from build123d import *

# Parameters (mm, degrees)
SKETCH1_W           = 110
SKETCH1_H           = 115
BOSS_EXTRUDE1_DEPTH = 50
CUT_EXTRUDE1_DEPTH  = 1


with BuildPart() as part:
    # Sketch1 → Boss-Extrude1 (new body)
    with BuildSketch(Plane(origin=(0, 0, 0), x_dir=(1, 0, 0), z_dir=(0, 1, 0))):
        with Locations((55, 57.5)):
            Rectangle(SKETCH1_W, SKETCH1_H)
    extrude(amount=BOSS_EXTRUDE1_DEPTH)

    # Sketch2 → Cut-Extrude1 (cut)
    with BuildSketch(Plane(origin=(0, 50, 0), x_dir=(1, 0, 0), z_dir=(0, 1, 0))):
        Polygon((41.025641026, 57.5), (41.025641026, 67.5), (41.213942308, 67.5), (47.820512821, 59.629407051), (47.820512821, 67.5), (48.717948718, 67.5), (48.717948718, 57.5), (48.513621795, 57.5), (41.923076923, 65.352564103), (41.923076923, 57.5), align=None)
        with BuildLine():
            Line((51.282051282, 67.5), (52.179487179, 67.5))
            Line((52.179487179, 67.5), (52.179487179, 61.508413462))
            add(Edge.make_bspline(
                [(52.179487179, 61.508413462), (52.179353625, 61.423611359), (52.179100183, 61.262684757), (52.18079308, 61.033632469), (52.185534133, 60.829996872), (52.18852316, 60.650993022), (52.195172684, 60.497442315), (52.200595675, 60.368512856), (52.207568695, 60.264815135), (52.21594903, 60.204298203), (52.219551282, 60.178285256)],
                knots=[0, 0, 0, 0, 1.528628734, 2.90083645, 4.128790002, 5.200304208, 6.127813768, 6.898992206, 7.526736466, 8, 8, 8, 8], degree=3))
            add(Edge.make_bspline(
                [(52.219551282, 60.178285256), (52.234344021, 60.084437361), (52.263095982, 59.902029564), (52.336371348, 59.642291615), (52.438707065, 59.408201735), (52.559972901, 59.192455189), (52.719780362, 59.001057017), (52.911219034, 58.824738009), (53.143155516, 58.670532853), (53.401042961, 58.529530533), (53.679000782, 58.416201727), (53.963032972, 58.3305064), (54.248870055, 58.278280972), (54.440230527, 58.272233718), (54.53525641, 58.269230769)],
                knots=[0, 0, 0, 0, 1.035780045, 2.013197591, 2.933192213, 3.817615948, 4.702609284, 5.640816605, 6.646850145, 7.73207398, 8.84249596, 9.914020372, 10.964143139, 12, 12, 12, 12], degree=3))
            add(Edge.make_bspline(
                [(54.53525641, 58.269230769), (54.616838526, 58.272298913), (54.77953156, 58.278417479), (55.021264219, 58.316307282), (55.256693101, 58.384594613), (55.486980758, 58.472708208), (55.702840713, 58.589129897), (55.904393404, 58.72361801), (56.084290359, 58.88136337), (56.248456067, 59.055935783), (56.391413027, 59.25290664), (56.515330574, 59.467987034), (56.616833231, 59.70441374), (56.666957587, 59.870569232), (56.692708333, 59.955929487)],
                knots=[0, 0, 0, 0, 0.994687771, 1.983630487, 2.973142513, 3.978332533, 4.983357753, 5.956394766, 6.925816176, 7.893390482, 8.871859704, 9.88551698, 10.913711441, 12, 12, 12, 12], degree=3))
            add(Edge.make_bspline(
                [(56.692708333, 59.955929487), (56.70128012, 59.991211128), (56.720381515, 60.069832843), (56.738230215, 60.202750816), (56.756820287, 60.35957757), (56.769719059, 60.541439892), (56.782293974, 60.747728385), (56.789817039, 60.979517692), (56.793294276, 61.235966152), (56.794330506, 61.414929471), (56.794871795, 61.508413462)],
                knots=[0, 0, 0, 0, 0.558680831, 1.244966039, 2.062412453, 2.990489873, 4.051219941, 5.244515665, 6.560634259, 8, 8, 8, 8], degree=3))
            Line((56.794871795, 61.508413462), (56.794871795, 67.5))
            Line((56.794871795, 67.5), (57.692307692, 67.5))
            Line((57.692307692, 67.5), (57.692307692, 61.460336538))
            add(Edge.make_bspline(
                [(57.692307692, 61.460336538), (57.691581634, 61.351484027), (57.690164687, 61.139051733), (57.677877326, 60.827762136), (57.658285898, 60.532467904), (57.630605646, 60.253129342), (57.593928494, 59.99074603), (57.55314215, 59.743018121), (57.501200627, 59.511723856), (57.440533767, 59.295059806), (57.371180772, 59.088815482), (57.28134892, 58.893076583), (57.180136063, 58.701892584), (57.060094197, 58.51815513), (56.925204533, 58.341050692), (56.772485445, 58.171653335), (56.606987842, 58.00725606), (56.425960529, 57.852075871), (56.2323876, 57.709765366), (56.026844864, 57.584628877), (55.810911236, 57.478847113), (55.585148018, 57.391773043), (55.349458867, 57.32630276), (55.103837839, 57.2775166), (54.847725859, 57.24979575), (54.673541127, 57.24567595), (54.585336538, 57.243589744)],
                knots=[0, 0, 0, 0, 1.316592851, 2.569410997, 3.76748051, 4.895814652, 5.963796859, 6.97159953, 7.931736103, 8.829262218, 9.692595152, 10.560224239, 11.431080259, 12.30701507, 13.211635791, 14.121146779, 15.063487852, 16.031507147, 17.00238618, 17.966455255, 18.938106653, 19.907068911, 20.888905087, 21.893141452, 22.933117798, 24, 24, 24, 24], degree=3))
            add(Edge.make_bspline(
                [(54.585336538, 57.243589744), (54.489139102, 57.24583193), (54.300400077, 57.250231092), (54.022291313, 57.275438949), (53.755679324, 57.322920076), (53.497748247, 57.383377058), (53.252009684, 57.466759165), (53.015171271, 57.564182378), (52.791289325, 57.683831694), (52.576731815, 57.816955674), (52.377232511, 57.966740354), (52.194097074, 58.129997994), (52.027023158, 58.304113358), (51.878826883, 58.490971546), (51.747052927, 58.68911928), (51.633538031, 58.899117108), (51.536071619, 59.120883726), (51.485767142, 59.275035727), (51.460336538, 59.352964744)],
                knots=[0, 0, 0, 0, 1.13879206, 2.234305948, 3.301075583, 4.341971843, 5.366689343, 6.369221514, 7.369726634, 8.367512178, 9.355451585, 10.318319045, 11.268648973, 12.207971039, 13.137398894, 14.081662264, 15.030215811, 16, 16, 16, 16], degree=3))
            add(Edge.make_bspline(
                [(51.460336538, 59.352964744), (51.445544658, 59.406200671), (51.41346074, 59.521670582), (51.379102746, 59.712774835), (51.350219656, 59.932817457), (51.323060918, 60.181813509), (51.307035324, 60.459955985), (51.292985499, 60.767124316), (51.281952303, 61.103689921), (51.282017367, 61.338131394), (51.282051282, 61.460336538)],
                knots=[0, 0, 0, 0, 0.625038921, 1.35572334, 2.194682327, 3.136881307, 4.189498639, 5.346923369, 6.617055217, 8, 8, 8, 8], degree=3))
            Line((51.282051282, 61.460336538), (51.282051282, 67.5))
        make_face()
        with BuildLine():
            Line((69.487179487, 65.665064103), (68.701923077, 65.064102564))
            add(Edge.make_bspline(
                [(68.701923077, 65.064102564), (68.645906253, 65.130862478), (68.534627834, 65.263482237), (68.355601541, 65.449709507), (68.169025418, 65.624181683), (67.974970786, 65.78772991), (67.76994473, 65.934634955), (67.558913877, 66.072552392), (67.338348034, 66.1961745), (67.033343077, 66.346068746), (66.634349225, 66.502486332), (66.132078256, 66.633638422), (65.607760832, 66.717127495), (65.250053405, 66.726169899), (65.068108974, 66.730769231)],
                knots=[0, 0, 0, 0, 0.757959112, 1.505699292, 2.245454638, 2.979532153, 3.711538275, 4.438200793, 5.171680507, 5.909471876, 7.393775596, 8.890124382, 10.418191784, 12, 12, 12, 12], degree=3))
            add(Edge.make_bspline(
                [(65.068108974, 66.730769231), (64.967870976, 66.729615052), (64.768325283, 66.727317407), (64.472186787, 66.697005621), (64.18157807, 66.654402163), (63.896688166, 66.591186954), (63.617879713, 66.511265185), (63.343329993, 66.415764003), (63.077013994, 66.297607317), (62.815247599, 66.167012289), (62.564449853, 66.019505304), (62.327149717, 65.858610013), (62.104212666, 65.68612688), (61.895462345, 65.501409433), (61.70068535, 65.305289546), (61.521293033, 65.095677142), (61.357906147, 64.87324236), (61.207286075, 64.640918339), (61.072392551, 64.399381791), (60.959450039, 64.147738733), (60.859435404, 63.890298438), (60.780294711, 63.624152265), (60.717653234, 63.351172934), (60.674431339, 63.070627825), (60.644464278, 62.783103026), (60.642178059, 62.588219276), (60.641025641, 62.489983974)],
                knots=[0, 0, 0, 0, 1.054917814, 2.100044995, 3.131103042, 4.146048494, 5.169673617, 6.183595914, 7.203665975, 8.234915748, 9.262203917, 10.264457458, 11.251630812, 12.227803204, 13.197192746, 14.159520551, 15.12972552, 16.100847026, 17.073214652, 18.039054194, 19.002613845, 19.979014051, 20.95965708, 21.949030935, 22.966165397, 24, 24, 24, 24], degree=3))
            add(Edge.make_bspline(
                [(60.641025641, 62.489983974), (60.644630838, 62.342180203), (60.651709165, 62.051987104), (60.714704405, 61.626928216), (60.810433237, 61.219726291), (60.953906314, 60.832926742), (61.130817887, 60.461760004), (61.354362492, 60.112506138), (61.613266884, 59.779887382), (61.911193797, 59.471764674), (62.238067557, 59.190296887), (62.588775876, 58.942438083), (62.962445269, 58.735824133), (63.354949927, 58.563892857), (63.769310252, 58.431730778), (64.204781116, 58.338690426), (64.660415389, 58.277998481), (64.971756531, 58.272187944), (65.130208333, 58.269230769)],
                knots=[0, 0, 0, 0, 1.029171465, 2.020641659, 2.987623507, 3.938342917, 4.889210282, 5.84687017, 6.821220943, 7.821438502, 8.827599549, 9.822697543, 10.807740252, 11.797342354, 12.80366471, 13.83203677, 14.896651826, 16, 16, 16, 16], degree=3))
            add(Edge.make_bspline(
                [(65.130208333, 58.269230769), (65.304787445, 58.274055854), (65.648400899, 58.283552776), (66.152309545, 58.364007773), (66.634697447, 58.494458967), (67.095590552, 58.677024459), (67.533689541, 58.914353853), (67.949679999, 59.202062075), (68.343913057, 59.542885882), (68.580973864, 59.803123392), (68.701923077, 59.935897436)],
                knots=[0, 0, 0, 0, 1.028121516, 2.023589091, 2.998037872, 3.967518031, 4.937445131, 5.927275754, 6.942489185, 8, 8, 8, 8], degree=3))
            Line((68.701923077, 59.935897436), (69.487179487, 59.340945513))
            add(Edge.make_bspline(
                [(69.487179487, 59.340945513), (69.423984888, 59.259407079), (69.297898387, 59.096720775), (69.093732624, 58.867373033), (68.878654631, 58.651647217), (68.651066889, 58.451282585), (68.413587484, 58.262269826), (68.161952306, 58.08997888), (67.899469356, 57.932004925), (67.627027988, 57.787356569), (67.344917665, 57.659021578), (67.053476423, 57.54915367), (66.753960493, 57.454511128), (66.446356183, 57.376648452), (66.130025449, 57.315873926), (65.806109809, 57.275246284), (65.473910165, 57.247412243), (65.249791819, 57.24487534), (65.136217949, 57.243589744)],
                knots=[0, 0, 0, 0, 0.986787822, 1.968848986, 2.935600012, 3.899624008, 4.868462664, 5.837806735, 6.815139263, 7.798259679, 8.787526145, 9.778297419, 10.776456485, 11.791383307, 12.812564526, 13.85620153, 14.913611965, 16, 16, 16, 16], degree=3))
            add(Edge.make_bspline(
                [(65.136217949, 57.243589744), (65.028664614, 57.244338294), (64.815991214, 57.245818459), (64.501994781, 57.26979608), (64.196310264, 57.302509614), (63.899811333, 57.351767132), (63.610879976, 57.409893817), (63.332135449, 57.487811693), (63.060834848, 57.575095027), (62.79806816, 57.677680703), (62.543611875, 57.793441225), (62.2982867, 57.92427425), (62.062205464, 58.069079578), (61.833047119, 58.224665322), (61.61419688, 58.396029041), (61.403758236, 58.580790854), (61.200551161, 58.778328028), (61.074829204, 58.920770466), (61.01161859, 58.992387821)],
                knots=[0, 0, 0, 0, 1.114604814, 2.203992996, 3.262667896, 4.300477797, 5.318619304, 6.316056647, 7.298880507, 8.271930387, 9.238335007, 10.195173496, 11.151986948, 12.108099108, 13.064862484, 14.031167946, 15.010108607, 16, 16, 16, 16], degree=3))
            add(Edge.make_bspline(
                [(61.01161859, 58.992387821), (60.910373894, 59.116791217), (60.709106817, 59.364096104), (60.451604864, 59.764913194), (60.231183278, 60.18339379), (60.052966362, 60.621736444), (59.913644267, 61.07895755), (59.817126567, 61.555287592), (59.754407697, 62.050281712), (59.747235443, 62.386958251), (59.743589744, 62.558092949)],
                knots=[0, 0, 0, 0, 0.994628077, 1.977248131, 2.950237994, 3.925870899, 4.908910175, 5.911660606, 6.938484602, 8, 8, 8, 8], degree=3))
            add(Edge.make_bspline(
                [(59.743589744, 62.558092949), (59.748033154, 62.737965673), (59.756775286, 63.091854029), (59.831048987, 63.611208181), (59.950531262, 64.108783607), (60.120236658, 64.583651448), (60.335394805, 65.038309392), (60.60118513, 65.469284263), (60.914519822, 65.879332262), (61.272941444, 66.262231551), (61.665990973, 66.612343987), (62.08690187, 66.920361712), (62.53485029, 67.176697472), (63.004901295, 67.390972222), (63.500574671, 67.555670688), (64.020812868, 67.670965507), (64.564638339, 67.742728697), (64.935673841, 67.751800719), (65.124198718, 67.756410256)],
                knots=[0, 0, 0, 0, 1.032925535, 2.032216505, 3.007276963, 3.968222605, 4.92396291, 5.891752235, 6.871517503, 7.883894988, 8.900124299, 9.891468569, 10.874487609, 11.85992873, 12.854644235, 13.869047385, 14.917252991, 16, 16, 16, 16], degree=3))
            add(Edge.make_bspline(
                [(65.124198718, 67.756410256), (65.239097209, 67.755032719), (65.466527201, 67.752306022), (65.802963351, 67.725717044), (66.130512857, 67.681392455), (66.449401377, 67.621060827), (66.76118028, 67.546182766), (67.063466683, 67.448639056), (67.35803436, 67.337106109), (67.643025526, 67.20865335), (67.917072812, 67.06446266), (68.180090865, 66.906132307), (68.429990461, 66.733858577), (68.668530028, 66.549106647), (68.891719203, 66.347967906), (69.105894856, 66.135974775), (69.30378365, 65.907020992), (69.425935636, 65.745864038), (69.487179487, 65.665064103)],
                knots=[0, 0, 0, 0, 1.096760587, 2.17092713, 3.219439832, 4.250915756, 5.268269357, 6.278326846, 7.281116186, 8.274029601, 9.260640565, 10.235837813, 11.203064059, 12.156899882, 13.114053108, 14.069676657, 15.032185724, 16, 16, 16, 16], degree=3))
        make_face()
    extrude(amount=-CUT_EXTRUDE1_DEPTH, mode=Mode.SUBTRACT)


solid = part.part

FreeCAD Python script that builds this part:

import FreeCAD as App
import Part
import Sketcher
Q = App.Units.Quantity


def add_polygon(sketch, points):
    """Adds a closed chain of lines whose ends are joined by coincident constraints."""
    first, n = sketch.GeometryCount, len(points)
    for a, b in zip(points, points[1:] + points[:1]):
        sketch.addGeometry(Part.LineSegment(App.Vector(*a, 0), App.Vector(*b, 0)), False)
    for i in range(n):
        sketch.addConstraint(Sketcher.Constraint("Coincident", first + i, 2, first + (i + 1) % n, 1))

doc = App.newDocument("Part")
body = doc.addObject("PartDesign::Body", "Body")

# Sketch on XZ plane
sketch1 = doc.addObject("Sketcher::SketchObject", "Sketch")
body.addObject(sketch1)
sketch1.AttachmentSupport = (doc.XZ_Plane, [""])
sketch1.MapMode = "FlatFace"
add_polygon(sketch1, [(0, -115), (0, 0), (110, 0), (110, -115)])  # lines 0-3
sketch1.addConstraint([
    Sketcher.Constraint("Vertical", 0),
    Sketcher.Constraint("Horizontal", 1),
    Sketcher.Constraint("Vertical", 2),
    Sketcher.Constraint("Horizontal", 3),
    Sketcher.Constraint("Coincident", 0, 2, -1, 1),
    Sketcher.Constraint("DistanceX", 1, 1, 1, 2, Q("110 mm")),
    Sketcher.Constraint("DistanceY", 0, 1, 0, 2, Q("115 mm")),
])
pad1 = doc.addObject("PartDesign::Pad", "Pad")
body.addObject(pad1)
pad1.Profile = sketch1
pad1.Length = 50
pad1.Reversed = True

# Sketch on XZ plane
sketch2 = doc.addObject("Sketcher::SketchObject", "Sketch001")
body.addObject(sketch2)
sketch2.AttachmentSupport = (doc.XZ_Plane, [""])
sketch2.MapMode = "FlatFace"
sketch2.AttachmentOffset = App.Placement(App.Vector(0, 0, -50), App.Rotation())
add_polygon(sketch2, [(41.025641, -67.5), (41.025641, -57.5), (41.923077, -57.5), (41.923077, -65.352564), (48.513622, -57.5), (48.717949, -57.5), (48.717949, -67.5), (47.820513, -67.5), (47.820513, -59.629407), (41.213942, -67.5)])  # lines 0-9
sketch2.addGeometry(Part.LineSegment(App.Vector(52.179487, -67.5, 0), App.Vector(51.282051, -67.5, 0)), False)  # 10
sketch2.addGeometry(Part.LineSegment(App.Vector(51.282051, -67.5, 0), App.Vector(51.282051, -61.460337, 0)), False)  # 11
sketch2.addGeometry(Part.BSplineCurve([App.Vector(51.460337, -59.352965, 0), App.Vector(51.445545, -59.406201, 0), App.Vector(51.413461, -59.521671, 0), App.Vector(51.379103, -59.712775, 0), App.Vector(51.35022, -59.932817, 0), App.Vector(51.323061, -60.181814, 0), App.Vector(51.307035, -60.459956, 0), App.Vector(51.292985, -60.767124, 0), App.Vector(51.281952, -61.10369, 0), App.Vector(51.282017, -61.338131, 0), App.Vector(51.282051, -61.460337, 0)], [4, 1, 1, 1, 1, 1, 1, 1, 4], [0, 0.625038921, 1.35572334, 2.194682327, 3.136881307, 4.189498639, 5.346923369, 6.617055217, 8], False, 3, [1, 1, 1, 1, 1, 1, 1, 1, 1, 1, 1], False), False)  # 12
sketch2.addGeometry(Part.BSplineCurve([App.Vector(54.585337, -57.24359, 0), App.Vector(54.489139, -57.245832, 0), App.Vector(54.3004, -57.250231, 0), App.Vector(54.022291, -57.275439, 0), App.Vector(53.755679, -57.32292, 0), App.Vector(53.497748, -57.383377, 0), App.Vector(53.25201, -57.466759, 0), App.Vector(53.015171, -57.564182, 0), App.Vector(52.791289, -57.683832, 0), App.Vector(52.576732, -57.816956, 0), App.Vector(52.377233, -57.96674, 0), App.Vector(52.194097, -58.129998, 0), App.Vector(52.027023, -58.304113, 0), App.Vector(51.878827, -58.490972, 0), App.Vector(51.747053, -58.689119, 0), App.Vector(51.633538, -58.899117, 0), App.Vector(51.536072, -59.120884, 0), App.Vector(51.485767, -59.275036, 0), App.Vector(51.460337, -59.352965, 0)], [4, 1, 1, 1, 1, 1, 1, 1, 1, 1, 1, 1, 1, 1, 1, 1, 4], [0, 1.13879206, 2.234305948, 3.301075583, 4.341971843, 5.366689343, 6.369221514, 7.369726634, 8.367512178, 9.355451585, 10.318319045, 11.268648973, 12.207971039, 13.137398894, 14.081662264, 15.030215811, 16], False, 3, [1, 1, 1, 1, 1, 1, 1, 1, 1, 1, 1, 1, 1, 1, 1, 1, 1, 1, 1], False), False)  # 13
sketch2.addGeometry(Part.BSplineCurve([App.Vector(57.692308, -61.460337, 0), App.Vector(57.691582, -61.351484, 0), App.Vector(57.690165, -61.139052, 0), App.Vector(57.677877, -60.827762, 0), App.Vector(57.658286, -60.532468, 0), App.Vector(57.630606, -60.253129, 0), App.Vector(57.593928, -59.990746, 0), App.Vector(57.553142, -59.743018, 0), App.Vector(57.501201, -59.511724, 0), App.Vector(57.440534, -59.29506, 0), App.Vector(57.371181, -59.088815, 0), App.Vector(57.281349, -58.893077, 0), App.Vector(57.180136, -58.701893, 0), App.Vector(57.060094, -58.518155, 0), App.Vector(56.925205, -58.341051, 0), App.Vector(56.772485, -58.171653, 0), App.Vector(56.606988, -58.007256, 0), App.Vector(56.425961, -57.852076, 0), App.Vector(56.232388, -57.709765, 0), App.Vector(56.026845, -57.584629, 0), App.Vector(55.810911, -57.478847, 0), App.Vector(55.585148, -57.391773, 0), App.Vector(55.349459, -57.326303, 0), App.Vector(55.103838, -57.277517, 0), App.Vector(54.847726, -57.249796, 0), App.Vector(54.673541, -57.245676, 0), App.Vector(54.585337, -57.24359, 0)], [4, 1, 1, 1, 1, 1, 1, 1, 1, 1, 1, 1, 1, 1, 1, 1, 1, 1, 1, 1, 1, 1, 1, 1, 4], [0, 1.316592851, 2.569410997, 3.76748051, 4.895814652, 5.963796859, 6.97159953, 7.931736103, 8.829262218, 9.692595152, 10.560224239, 11.431080259, 12.30701507, 13.211635791, 14.121146779, 15.063487852, 16.031507147, 17.00238618, 17.966455255, 18.938106653, 19.907068911, 20.888905087, 21.893141452, 22.933117798, 24], False, 3, [1, 1, 1, 1, 1, 1, 1, 1, 1, 1, 1, 1, 1, 1, 1, 1, 1, 1, 1, 1, 1, 1, 1, 1, 1, 1, 1], False), False)  # 14
sketch2.addGeometry(Part.LineSegment(App.Vector(57.692308, -61.460337, 0), App.Vector(57.692308, -67.5, 0)), False)  # 15
sketch2.addGeometry(Part.LineSegment(App.Vector(57.692308, -67.5, 0), App.Vector(56.794872, -67.5, 0)), False)  # 16
sketch2.addGeometry(Part.LineSegment(App.Vector(56.794872, -67.5, 0), App.Vector(56.794872, -61.508413, 0)), False)  # 17
sketch2.addGeometry(Part.BSplineCurve([App.Vector(56.692708, -59.955929, 0), App.Vector(56.70128, -59.991211, 0), App.Vector(56.720382, -60.069833, 0), App.Vector(56.73823, -60.202751, 0), App.Vector(56.75682, -60.359578, 0), App.Vector(56.769719, -60.54144, 0), App.Vector(56.782294, -60.747728, 0), App.Vector(56.789817, -60.979518, 0), App.Vector(56.793294, -61.235966, 0), App.Vector(56.794331, -61.414929, 0), App.Vector(56.794872, -61.508413, 0)], [4, 1, 1, 1, 1, 1, 1, 1, 4], [0, 0.558680831, 1.244966039, 2.062412453, 2.990489873, 4.051219941, 5.244515665, 6.560634259, 8], False, 3, [1, 1, 1, 1, 1, 1, 1, 1, 1, 1, 1], False), False)  # 18
sketch2.addGeometry(Part.BSplineCurve([App.Vector(54.535256, -58.269231, 0), App.Vector(54.616839, -58.272299, 0), App.Vector(54.779532, -58.278417, 0), App.Vector(55.021264, -58.316307, 0), App.Vector(55.256693, -58.384595, 0), App.Vector(55.486981, -58.472708, 0), App.Vector(55.702841, -58.58913, 0), App.Vector(55.904393, -58.723618, 0), App.Vector(56.08429, -58.881363, 0), App.Vector(56.248456, -59.055936, 0), App.Vector(56.391413, -59.252907, 0), App.Vector(56.515331, -59.467987, 0), App.Vector(56.616833, -59.704414, 0), App.Vector(56.666958, -59.870569, 0), App.Vector(56.692708, -59.955929, 0)], [4, 1, 1, 1, 1, 1, 1, 1, 1, 1, 1, 1, 4], [0, 0.994687771, 1.983630487, 2.973142513, 3.978332533, 4.983357753, 5.956394766, 6.925816176, 7.893390482, 8.871859704, 9.88551698, 10.913711441, 12], False, 3, [1, 1, 1, 1, 1, 1, 1, 1, 1, 1, 1, 1, 1, 1, 1], False), False)  # 19
sketch2.addGeometry(Part.BSplineCurve([App.Vector(52.219551, -60.178285, 0), App.Vector(52.234344, -60.084437, 0), App.Vector(52.263096, -59.90203, 0), App.Vector(52.336371, -59.642292, 0), App.Vector(52.438707, -59.408202, 0), App.Vector(52.559973, -59.192455, 0), App.Vector(52.71978, -59.001057, 0), App.Vector(52.911219, -58.824738, 0), App.Vector(53.143156, -58.670533, 0), App.Vector(53.401043, -58.529531, 0), App.Vector(53.679001, -58.416202, 0), App.Vector(53.963033, -58.330506, 0), App.Vector(54.24887, -58.278281, 0), App.Vector(54.440231, -58.272234, 0), App.Vector(54.535256, -58.269231, 0)], [4, 1, 1, 1, 1, 1, 1, 1, 1, 1, 1, 1, 4], [0, 1.035780045, 2.013197591, 2.933192213, 3.817615948, 4.702609284, 5.640816605, 6.646850145, 7.73207398, 8.84249596, 9.914020372, 10.964143139, 12], False, 3, [1, 1, 1, 1, 1, 1, 1, 1, 1, 1, 1, 1, 1, 1, 1], False), False)  # 20
sketch2.addGeometry(Part.BSplineCurve([App.Vector(52.179487, -61.508413, 0), App.Vector(52.179354, -61.423611, 0), App.Vector(52.1791, -61.262685, 0), App.Vector(52.180793, -61.033632, 0), App.Vector(52.185534, -60.829997, 0), App.Vector(52.188523, -60.650993, 0), App.Vector(52.195173, -60.497442, 0), App.Vector(52.200596, -60.368513, 0), App.Vector(52.207569, -60.264815, 0), App.Vector(52.215949, -60.204298, 0), App.Vector(52.219551, -60.178285, 0)], [4, 1, 1, 1, 1, 1, 1, 1, 4], [0, 1.528628734, 2.90083645, 4.128790002, 5.200304208, 6.127813768, 6.898992206, 7.526736466, 8], False, 3, [1, 1, 1, 1, 1, 1, 1, 1, 1, 1, 1], False), False)  # 21
sketch2.addGeometry(Part.LineSegment(App.Vector(52.179487, -61.508413, 0), App.Vector(52.179487, -67.5, 0)), False)  # 22
sketch2.addGeometry(Part.LineSegment(App.Vector(68.701923, -65.064103, 0), App.Vector(69.487179, -65.665064, 0)), False)  # 23
sketch2.addGeometry(Part.BSplineCurve([App.Vector(65.124199, -67.75641, 0), App.Vector(65.239097, -67.755033, 0), App.Vector(65.466527, -67.752306, 0), App.Vector(65.802963, -67.725717, 0), App.Vector(66.130513, -67.681392, 0), App.Vector(66.449401, -67.621061, 0), App.Vector(66.76118, -67.546183, 0), App.Vector(67.063467, -67.448639, 0), App.Vector(67.358034, -67.337106, 0), App.Vector(67.643026, -67.208653, 0), App.Vector(67.917073, -67.064463, 0), App.Vector(68.180091, -66.906132, 0), App.Vector(68.42999, -66.733859, 0), App.Vector(68.66853, -66.549107, 0), App.Vector(68.891719, -66.347968, 0), App.Vector(69.105895, -66.135975, 0), App.Vector(69.303784, -65.907021, 0), App.Vector(69.425936, -65.745864, 0), App.Vector(69.487179, -65.665064, 0)], [4, 1, 1, 1, 1, 1, 1, 1, 1, 1, 1, 1, 1, 1, 1, 1, 4], [0, 1.096760587, 2.17092713, 3.219439832, 4.250915756, 5.268269357, 6.278326846, 7.281116186, 8.274029601, 9.260640565, 10.235837813, 11.203064059, 12.156899882, 13.114053108, 14.069676657, 15.032185724, 16], False, 3, [1, 1, 1, 1, 1, 1, 1, 1, 1, 1, 1, 1, 1, 1, 1, 1, 1, 1, 1], False), False)  # 24
sketch2.addGeometry(Part.BSplineCurve([App.Vector(59.74359, -62.558093, 0), App.Vector(59.748033, -62.737966, 0), App.Vector(59.756775, -63.091854, 0), App.Vector(59.831049, -63.611208, 0), App.Vector(59.950531, -64.108784, 0), App.Vector(60.120237, -64.583651, 0), App.Vector(60.335395, -65.038309, 0), App.Vector(60.601185, -65.469284, 0), App.Vector(60.91452, -65.879332, 0), App.Vector(61.272941, -66.262232, 0), App.Vector(61.665991, -66.612344, 0), App.Vector(62.086902, -66.920362, 0), App.Vector(62.53485, -67.176697, 0), App.Vector(63.004901, -67.390972, 0), App.Vector(63.500575, -67.555671, 0), App.Vector(64.020813, -67.670966, 0), App.Vector(64.564638, -67.742729, 0), App.Vector(64.935674, -67.751801, 0), App.Vector(65.124199, -67.75641, 0)], [4, 1, 1, 1, 1, 1, 1, 1, 1, 1, 1, 1, 1, 1, 1, 1, 4], [0, 1.032925535, 2.032216505, 3.007276963, 3.968222605, 4.92396291, 5.891752235, 6.871517503, 7.883894988, 8.900124299, 9.891468569, 10.874487609, 11.85992873, 12.854644235, 13.869047385, 14.917252991, 16], False, 3, [1, 1, 1, 1, 1, 1, 1, 1, 1, 1, 1, 1, 1, 1, 1, 1, 1, 1, 1], False), False)  # 25
sketch2.addGeometry(Part.BSplineCurve([App.Vector(61.011619, -58.992388, 0), App.Vector(60.910374, -59.116791, 0), App.Vector(60.709107, -59.364096, 0), App.Vector(60.451605, -59.764913, 0), App.Vector(60.231183, -60.183394, 0), App.Vector(60.052966, -60.621736, 0), App.Vector(59.913644, -61.078958, 0), App.Vector(59.817127, -61.555288, 0), App.Vector(59.754408, -62.050282, 0), App.Vector(59.747235, -62.386958, 0), App.Vector(59.74359, -62.558093, 0)], [4, 1, 1, 1, 1, 1, 1, 1, 4], [0, 0.994628077, 1.977248131, 2.950237994, 3.925870899, 4.908910175, 5.911660606, 6.938484602, 8], False, 3, [1, 1, 1, 1, 1, 1, 1, 1, 1, 1, 1], False), False)  # 26
sketch2.addGeometry(Part.BSplineCurve([App.Vector(65.136218, -57.24359, 0), App.Vector(65.028665, -57.244338, 0), App.Vector(64.815991, -57.245818, 0), App.Vector(64.501995, -57.269796, 0), App.Vector(64.19631, -57.30251, 0), App.Vector(63.899811, -57.351767, 0), App.Vector(63.61088, -57.409894, 0), App.Vector(63.332135, -57.487812, 0), App.Vector(63.060835, -57.575095, 0), App.Vector(62.798068, -57.677681, 0), App.Vector(62.543612, -57.793441, 0), App.Vector(62.298287, -57.924274, 0), App.Vector(62.062205, -58.06908, 0), App.Vector(61.833047, -58.224665, 0), App.Vector(61.614197, -58.396029, 0), App.Vector(61.403758, -58.580791, 0), App.Vector(61.200551, -58.778328, 0), App.Vector(61.074829, -58.92077, 0), App.Vector(61.011619, -58.992388, 0)], [4, 1, 1, 1, 1, 1, 1, 1, 1, 1, 1, 1, 1, 1, 1, 1, 4], [0, 1.114604814, 2.203992996, 3.262667896, 4.300477797, 5.318619304, 6.316056647, 7.298880507, 8.271930387, 9.238335007, 10.195173496, 11.151986948, 12.108099108, 13.064862484, 14.031167946, 15.010108607, 16], False, 3, [1, 1, 1, 1, 1, 1, 1, 1, 1, 1, 1, 1, 1, 1, 1, 1, 1, 1, 1], False), False)  # 27
sketch2.addGeometry(Part.BSplineCurve([App.Vector(69.487179, -59.340946, 0), App.Vector(69.423985, -59.259407, 0), App.Vector(69.297898, -59.096721, 0), App.Vector(69.093733, -58.867373, 0), App.Vector(68.878655, -58.651647, 0), App.Vector(68.651067, -58.451283, 0), App.Vector(68.413587, -58.26227, 0), App.Vector(68.161952, -58.089979, 0), App.Vector(67.899469, -57.932005, 0), App.Vector(67.627028, -57.787357, 0), App.Vector(67.344918, -57.659022, 0), App.Vector(67.053476, -57.549154, 0), App.Vector(66.75396, -57.454511, 0), App.Vector(66.446356, -57.376648, 0), App.Vector(66.130025, -57.315874, 0), App.Vector(65.80611, -57.275246, 0), App.Vector(65.47391, -57.247412, 0), App.Vector(65.249792, -57.244875, 0), App.Vector(65.136218, -57.24359, 0)], [4, 1, 1, 1, 1, 1, 1, 1, 1, 1, 1, 1, 1, 1, 1, 1, 4], [0, 0.986787822, 1.968848986, 2.935600012, 3.899624008, 4.868462664, 5.837806735, 6.815139263, 7.798259679, 8.787526145, 9.778297419, 10.776456485, 11.791383307, 12.812564526, 13.85620153, 14.913611965, 16], False, 3, [1, 1, 1, 1, 1, 1, 1, 1, 1, 1, 1, 1, 1, 1, 1, 1, 1, 1, 1], False), False)  # 28
sketch2.addGeometry(Part.LineSegment(App.Vector(69.487179, -59.340946, 0), App.Vector(68.701923, -59.935897, 0)), False)  # 29
sketch2.addGeometry(Part.BSplineCurve([App.Vector(65.130208, -58.269231, 0), App.Vector(65.304787, -58.274056, 0), App.Vector(65.648401, -58.283553, 0), App.Vector(66.15231, -58.364008, 0), App.Vector(66.634697, -58.494459, 0), App.Vector(67.095591, -58.677024, 0), App.Vector(67.53369, -58.914354, 0), App.Vector(67.94968, -59.202062, 0), App.Vector(68.343913, -59.542886, 0), App.Vector(68.580974, -59.803123, 0), App.Vector(68.701923, -59.935897, 0)], [4, 1, 1, 1, 1, 1, 1, 1, 4], [0, 1.028121516, 2.023589091, 2.998037872, 3.967518031, 4.937445131, 5.927275754, 6.942489185, 8], False, 3, [1, 1, 1, 1, 1, 1, 1, 1, 1, 1, 1], False), False)  # 30
sketch2.addGeometry(Part.BSplineCurve([App.Vector(60.641026, -62.489984, 0), App.Vector(60.644631, -62.34218, 0), App.Vector(60.651709, -62.051987, 0), App.Vector(60.714704, -61.626928, 0), App.Vector(60.810433, -61.219726, 0), App.Vector(60.953906, -60.832927, 0), App.Vector(61.130818, -60.46176, 0), App.Vector(61.354362, -60.112506, 0), App.Vector(61.613267, -59.779887, 0), App.Vector(61.911194, -59.471765, 0), App.Vector(62.238068, -59.190297, 0), App.Vector(62.588776, -58.942438, 0), App.Vector(62.962445, -58.735824, 0), App.Vector(63.35495, -58.563893, 0), App.Vector(63.76931, -58.431731, 0), App.Vector(64.204781, -58.33869, 0), App.Vector(64.660415, -58.277998, 0), App.Vector(64.971757, -58.272188, 0), App.Vector(65.130208, -58.269231, 0)], [4, 1, 1, 1, 1, 1, 1, 1, 1, 1, 1, 1, 1, 1, 1, 1, 4], [0, 1.029171465, 2.020641659, 2.987623507, 3.938342917, 4.889210282, 5.84687017, 6.821220943, 7.821438502, 8.827599549, 9.822697543, 10.807740252, 11.797342354, 12.80366471, 13.83203677, 14.896651826, 16], False, 3, [1, 1, 1, 1, 1, 1, 1, 1, 1, 1, 1, 1, 1, 1, 1, 1, 1, 1, 1], False), False)  # 31
sketch2.addGeometry(Part.BSplineCurve([App.Vector(65.068109, -66.730769, 0), App.Vector(64.967871, -66.729615, 0), App.Vector(64.768325, -66.727317, 0), App.Vector(64.472187, -66.697006, 0), App.Vector(64.181578, -66.654402, 0), App.Vector(63.896688, -66.591187, 0), App.Vector(63.61788, -66.511265, 0), App.Vector(63.34333, -66.415764, 0), App.Vector(63.077014, -66.297607, 0), App.Vector(62.815248, -66.167012, 0), App.Vector(62.56445, -66.019505, 0), App.Vector(62.32715, -65.85861, 0), App.Vector(62.104213, -65.686127, 0), App.Vector(61.895462, -65.501409, 0), App.Vector(61.700685, -65.30529, 0), App.Vector(61.521293, -65.095677, 0), App.Vector(61.357906, -64.873242, 0), App.Vector(61.207286, -64.640918, 0), App.Vector(61.072393, -64.399382, 0), App.Vector(60.95945, -64.147739, 0), App.Vector(60.859435, -63.890298, 0), App.Vector(60.780295, -63.624152, 0), App.Vector(60.717653, -63.351173, 0), App.Vector(60.674431, -63.070628, 0), App.Vector(60.644464, -62.783103, 0), App.Vector(60.642178, -62.588219, 0), App.Vector(60.641026, -62.489984, 0)], [4, 1, 1, 1, 1, 1, 1, 1, 1, 1, 1, 1, 1, 1, 1, 1, 1, 1, 1, 1, 1, 1, 1, 1, 4], [0, 1.054917814, 2.100044995, 3.131103042, 4.146048494, 5.169673617, 6.183595914, 7.203665975, 8.234915748, 9.262203917, 10.264457458, 11.251630812, 12.227803204, 13.197192746, 14.159520551, 15.12972552, 16.100847026, 17.073214652, 18.039054194, 19.002613845, 19.979014051, 20.95965708, 21.949030935, 22.966165397, 24], False, 3, [1, 1, 1, 1, 1, 1, 1, 1, 1, 1, 1, 1, 1, 1, 1, 1, 1, 1, 1, 1, 1, 1, 1, 1, 1, 1, 1], False), False)  # 32
sketch2.addGeometry(Part.BSplineCurve([App.Vector(68.701923, -65.064103, 0), App.Vector(68.645906, -65.130862, 0), App.Vector(68.534628, -65.263482, 0), App.Vector(68.355602, -65.44971, 0), App.Vector(68.169025, -65.624182, 0), App.Vector(67.974971, -65.78773, 0), App.Vector(67.769945, -65.934635, 0), App.Vector(67.558914, -66.072552, 0), App.Vector(67.338348, -66.196174, 0), App.Vector(67.033343, -66.346069, 0), App.Vector(66.634349, -66.502486, 0), App.Vector(66.132078, -66.633638, 0), App.Vector(65.607761, -66.717127, 0), App.Vector(65.250053, -66.72617, 0), App.Vector(65.068109, -66.730769, 0)], [4, 1, 1, 1, 1, 1, 1, 1, 1, 1, 1, 1, 4], [0, 0.757959112, 1.505699292, 2.245454638, 2.979532153, 3.711538275, 4.438200793, 5.171680507, 5.909471876, 7.393775596, 8.890124382, 10.418191784, 12], False, 3, [1, 1, 1, 1, 1, 1, 1, 1, 1, 1, 1, 1, 1, 1, 1], False), False)  # 33
sketch2.addConstraint([
    Sketcher.Constraint("Block", 12),
    Sketcher.Constraint("Block", 13),
    Sketcher.Constraint("Block", 14),
    Sketcher.Constraint("Block", 18),
    Sketcher.Constraint("Block", 19),
    Sketcher.Constraint("Block", 20),
    Sketcher.Constraint("Block", 21),
    Sketcher.Constraint("Block", 24),
    Sketcher.Constraint("Block", 25),
    Sketcher.Constraint("Block", 26),
    Sketcher.Constraint("Block", 27),
    Sketcher.Constraint("Block", 28),
    Sketcher.Constraint("Block", 30),
    Sketcher.Constraint("Block", 31),
    Sketcher.Constraint("Block", 32),
    Sketcher.Constraint("Block", 33),
    Sketcher.Constraint("Coincident", 10, 2, 11, 1),
    Sketcher.Constraint("Coincident", 11, 2, 12, 2),
    Sketcher.Constraint("Coincident", 14, 1, 15, 1),
    Sketcher.Constraint("Coincident", 15, 2, 16, 1),
    Sketcher.Constraint("Coincident", 16, 2, 17, 1),
    Sketcher.Constraint("Coincident", 17, 2, 18, 2),
    Sketcher.Constraint("Coincident", 21, 1, 22, 1),
    Sketcher.Constraint("Coincident", 22, 2, 10, 1),
    Sketcher.Constraint("Coincident", 23, 2, 24, 2),
    Sketcher.Constraint("Coincident", 28, 1, 29, 1),
    Sketcher.Constraint("Coincident", 29, 2, 30, 2),
    Sketcher.Constraint("Coincident", 33, 1, 23, 1),
    Sketcher.Constraint("Vertical", 0),
    Sketcher.Constraint("Horizontal", 1),
    Sketcher.Constraint("Vertical", 2),
    Sketcher.Constraint("Horizontal", 4),
    Sketcher.Constraint("Vertical", 5),
    Sketcher.Constraint("Horizontal", 6),
    Sketcher.Constraint("Vertical", 7),
    Sketcher.Constraint("Horizontal", 9),
    Sketcher.Constraint("Horizontal", 10),
    Sketcher.Constraint("Vertical", 11),
    Sketcher.Constraint("Vertical", 15),
    Sketcher.Constraint("Horizontal", 16),
    Sketcher.Constraint("Vertical", 17),
    Sketcher.Constraint("Vertical", 22),
    Sketcher.Constraint("DistanceY", 0, 1, 0, 2, Q("10 mm")),
    Sketcher.Constraint("DistanceY", 5, 2, 5, 1, Q("10 mm")),
    Sketcher.Constraint("DistanceY", 5, 2, 1, 2, Q("10 mm")),
    Sketcher.Constraint("DistanceY", 0, 2, -1, 1, Q("57.5 mm")),
    Sketcher.Constraint("DistanceY", 10, 2, -1, 1, Q("67.5 mm")),
    Sketcher.Constraint("DistanceY", 15, 2, -1, 1, Q("67.5 mm")),
    Sketcher.Constraint("DistanceX", 9, 2, 9, 1, Q("0.188301 mm")),
    Sketcher.Constraint("DistanceX", 1, 1, 1, 2, Q("0.897436 mm")),
    Sketcher.Constraint("DistanceX", 4, 1, 4, 2, Q("0.204327 mm")),
    Sketcher.Constraint("DistanceX", 6, 2, 6, 1, Q("0.897436 mm")),
    Sketcher.Constraint("DistanceY", 2, 2, 2, 1, Q("7.852564 mm")),
    Sketcher.Constraint("DistanceY", 7, 1, 7, 2, Q("7.870593 mm")),
    Sketcher.Constraint("DistanceX", -1, 1, 0, 2, Q("41.025641 mm")),
    Sketcher.Constraint("DistanceX", -1, 1, 3, 2, Q("48.513622 mm")),
])
pocket1 = doc.addObject("PartDesign::Pocket", "Pocket")
body.addObject(pocket1)
pocket1.Profile = sketch2
pocket1.Length = 1
pocket1.Reversed = True

doc.recompute()
